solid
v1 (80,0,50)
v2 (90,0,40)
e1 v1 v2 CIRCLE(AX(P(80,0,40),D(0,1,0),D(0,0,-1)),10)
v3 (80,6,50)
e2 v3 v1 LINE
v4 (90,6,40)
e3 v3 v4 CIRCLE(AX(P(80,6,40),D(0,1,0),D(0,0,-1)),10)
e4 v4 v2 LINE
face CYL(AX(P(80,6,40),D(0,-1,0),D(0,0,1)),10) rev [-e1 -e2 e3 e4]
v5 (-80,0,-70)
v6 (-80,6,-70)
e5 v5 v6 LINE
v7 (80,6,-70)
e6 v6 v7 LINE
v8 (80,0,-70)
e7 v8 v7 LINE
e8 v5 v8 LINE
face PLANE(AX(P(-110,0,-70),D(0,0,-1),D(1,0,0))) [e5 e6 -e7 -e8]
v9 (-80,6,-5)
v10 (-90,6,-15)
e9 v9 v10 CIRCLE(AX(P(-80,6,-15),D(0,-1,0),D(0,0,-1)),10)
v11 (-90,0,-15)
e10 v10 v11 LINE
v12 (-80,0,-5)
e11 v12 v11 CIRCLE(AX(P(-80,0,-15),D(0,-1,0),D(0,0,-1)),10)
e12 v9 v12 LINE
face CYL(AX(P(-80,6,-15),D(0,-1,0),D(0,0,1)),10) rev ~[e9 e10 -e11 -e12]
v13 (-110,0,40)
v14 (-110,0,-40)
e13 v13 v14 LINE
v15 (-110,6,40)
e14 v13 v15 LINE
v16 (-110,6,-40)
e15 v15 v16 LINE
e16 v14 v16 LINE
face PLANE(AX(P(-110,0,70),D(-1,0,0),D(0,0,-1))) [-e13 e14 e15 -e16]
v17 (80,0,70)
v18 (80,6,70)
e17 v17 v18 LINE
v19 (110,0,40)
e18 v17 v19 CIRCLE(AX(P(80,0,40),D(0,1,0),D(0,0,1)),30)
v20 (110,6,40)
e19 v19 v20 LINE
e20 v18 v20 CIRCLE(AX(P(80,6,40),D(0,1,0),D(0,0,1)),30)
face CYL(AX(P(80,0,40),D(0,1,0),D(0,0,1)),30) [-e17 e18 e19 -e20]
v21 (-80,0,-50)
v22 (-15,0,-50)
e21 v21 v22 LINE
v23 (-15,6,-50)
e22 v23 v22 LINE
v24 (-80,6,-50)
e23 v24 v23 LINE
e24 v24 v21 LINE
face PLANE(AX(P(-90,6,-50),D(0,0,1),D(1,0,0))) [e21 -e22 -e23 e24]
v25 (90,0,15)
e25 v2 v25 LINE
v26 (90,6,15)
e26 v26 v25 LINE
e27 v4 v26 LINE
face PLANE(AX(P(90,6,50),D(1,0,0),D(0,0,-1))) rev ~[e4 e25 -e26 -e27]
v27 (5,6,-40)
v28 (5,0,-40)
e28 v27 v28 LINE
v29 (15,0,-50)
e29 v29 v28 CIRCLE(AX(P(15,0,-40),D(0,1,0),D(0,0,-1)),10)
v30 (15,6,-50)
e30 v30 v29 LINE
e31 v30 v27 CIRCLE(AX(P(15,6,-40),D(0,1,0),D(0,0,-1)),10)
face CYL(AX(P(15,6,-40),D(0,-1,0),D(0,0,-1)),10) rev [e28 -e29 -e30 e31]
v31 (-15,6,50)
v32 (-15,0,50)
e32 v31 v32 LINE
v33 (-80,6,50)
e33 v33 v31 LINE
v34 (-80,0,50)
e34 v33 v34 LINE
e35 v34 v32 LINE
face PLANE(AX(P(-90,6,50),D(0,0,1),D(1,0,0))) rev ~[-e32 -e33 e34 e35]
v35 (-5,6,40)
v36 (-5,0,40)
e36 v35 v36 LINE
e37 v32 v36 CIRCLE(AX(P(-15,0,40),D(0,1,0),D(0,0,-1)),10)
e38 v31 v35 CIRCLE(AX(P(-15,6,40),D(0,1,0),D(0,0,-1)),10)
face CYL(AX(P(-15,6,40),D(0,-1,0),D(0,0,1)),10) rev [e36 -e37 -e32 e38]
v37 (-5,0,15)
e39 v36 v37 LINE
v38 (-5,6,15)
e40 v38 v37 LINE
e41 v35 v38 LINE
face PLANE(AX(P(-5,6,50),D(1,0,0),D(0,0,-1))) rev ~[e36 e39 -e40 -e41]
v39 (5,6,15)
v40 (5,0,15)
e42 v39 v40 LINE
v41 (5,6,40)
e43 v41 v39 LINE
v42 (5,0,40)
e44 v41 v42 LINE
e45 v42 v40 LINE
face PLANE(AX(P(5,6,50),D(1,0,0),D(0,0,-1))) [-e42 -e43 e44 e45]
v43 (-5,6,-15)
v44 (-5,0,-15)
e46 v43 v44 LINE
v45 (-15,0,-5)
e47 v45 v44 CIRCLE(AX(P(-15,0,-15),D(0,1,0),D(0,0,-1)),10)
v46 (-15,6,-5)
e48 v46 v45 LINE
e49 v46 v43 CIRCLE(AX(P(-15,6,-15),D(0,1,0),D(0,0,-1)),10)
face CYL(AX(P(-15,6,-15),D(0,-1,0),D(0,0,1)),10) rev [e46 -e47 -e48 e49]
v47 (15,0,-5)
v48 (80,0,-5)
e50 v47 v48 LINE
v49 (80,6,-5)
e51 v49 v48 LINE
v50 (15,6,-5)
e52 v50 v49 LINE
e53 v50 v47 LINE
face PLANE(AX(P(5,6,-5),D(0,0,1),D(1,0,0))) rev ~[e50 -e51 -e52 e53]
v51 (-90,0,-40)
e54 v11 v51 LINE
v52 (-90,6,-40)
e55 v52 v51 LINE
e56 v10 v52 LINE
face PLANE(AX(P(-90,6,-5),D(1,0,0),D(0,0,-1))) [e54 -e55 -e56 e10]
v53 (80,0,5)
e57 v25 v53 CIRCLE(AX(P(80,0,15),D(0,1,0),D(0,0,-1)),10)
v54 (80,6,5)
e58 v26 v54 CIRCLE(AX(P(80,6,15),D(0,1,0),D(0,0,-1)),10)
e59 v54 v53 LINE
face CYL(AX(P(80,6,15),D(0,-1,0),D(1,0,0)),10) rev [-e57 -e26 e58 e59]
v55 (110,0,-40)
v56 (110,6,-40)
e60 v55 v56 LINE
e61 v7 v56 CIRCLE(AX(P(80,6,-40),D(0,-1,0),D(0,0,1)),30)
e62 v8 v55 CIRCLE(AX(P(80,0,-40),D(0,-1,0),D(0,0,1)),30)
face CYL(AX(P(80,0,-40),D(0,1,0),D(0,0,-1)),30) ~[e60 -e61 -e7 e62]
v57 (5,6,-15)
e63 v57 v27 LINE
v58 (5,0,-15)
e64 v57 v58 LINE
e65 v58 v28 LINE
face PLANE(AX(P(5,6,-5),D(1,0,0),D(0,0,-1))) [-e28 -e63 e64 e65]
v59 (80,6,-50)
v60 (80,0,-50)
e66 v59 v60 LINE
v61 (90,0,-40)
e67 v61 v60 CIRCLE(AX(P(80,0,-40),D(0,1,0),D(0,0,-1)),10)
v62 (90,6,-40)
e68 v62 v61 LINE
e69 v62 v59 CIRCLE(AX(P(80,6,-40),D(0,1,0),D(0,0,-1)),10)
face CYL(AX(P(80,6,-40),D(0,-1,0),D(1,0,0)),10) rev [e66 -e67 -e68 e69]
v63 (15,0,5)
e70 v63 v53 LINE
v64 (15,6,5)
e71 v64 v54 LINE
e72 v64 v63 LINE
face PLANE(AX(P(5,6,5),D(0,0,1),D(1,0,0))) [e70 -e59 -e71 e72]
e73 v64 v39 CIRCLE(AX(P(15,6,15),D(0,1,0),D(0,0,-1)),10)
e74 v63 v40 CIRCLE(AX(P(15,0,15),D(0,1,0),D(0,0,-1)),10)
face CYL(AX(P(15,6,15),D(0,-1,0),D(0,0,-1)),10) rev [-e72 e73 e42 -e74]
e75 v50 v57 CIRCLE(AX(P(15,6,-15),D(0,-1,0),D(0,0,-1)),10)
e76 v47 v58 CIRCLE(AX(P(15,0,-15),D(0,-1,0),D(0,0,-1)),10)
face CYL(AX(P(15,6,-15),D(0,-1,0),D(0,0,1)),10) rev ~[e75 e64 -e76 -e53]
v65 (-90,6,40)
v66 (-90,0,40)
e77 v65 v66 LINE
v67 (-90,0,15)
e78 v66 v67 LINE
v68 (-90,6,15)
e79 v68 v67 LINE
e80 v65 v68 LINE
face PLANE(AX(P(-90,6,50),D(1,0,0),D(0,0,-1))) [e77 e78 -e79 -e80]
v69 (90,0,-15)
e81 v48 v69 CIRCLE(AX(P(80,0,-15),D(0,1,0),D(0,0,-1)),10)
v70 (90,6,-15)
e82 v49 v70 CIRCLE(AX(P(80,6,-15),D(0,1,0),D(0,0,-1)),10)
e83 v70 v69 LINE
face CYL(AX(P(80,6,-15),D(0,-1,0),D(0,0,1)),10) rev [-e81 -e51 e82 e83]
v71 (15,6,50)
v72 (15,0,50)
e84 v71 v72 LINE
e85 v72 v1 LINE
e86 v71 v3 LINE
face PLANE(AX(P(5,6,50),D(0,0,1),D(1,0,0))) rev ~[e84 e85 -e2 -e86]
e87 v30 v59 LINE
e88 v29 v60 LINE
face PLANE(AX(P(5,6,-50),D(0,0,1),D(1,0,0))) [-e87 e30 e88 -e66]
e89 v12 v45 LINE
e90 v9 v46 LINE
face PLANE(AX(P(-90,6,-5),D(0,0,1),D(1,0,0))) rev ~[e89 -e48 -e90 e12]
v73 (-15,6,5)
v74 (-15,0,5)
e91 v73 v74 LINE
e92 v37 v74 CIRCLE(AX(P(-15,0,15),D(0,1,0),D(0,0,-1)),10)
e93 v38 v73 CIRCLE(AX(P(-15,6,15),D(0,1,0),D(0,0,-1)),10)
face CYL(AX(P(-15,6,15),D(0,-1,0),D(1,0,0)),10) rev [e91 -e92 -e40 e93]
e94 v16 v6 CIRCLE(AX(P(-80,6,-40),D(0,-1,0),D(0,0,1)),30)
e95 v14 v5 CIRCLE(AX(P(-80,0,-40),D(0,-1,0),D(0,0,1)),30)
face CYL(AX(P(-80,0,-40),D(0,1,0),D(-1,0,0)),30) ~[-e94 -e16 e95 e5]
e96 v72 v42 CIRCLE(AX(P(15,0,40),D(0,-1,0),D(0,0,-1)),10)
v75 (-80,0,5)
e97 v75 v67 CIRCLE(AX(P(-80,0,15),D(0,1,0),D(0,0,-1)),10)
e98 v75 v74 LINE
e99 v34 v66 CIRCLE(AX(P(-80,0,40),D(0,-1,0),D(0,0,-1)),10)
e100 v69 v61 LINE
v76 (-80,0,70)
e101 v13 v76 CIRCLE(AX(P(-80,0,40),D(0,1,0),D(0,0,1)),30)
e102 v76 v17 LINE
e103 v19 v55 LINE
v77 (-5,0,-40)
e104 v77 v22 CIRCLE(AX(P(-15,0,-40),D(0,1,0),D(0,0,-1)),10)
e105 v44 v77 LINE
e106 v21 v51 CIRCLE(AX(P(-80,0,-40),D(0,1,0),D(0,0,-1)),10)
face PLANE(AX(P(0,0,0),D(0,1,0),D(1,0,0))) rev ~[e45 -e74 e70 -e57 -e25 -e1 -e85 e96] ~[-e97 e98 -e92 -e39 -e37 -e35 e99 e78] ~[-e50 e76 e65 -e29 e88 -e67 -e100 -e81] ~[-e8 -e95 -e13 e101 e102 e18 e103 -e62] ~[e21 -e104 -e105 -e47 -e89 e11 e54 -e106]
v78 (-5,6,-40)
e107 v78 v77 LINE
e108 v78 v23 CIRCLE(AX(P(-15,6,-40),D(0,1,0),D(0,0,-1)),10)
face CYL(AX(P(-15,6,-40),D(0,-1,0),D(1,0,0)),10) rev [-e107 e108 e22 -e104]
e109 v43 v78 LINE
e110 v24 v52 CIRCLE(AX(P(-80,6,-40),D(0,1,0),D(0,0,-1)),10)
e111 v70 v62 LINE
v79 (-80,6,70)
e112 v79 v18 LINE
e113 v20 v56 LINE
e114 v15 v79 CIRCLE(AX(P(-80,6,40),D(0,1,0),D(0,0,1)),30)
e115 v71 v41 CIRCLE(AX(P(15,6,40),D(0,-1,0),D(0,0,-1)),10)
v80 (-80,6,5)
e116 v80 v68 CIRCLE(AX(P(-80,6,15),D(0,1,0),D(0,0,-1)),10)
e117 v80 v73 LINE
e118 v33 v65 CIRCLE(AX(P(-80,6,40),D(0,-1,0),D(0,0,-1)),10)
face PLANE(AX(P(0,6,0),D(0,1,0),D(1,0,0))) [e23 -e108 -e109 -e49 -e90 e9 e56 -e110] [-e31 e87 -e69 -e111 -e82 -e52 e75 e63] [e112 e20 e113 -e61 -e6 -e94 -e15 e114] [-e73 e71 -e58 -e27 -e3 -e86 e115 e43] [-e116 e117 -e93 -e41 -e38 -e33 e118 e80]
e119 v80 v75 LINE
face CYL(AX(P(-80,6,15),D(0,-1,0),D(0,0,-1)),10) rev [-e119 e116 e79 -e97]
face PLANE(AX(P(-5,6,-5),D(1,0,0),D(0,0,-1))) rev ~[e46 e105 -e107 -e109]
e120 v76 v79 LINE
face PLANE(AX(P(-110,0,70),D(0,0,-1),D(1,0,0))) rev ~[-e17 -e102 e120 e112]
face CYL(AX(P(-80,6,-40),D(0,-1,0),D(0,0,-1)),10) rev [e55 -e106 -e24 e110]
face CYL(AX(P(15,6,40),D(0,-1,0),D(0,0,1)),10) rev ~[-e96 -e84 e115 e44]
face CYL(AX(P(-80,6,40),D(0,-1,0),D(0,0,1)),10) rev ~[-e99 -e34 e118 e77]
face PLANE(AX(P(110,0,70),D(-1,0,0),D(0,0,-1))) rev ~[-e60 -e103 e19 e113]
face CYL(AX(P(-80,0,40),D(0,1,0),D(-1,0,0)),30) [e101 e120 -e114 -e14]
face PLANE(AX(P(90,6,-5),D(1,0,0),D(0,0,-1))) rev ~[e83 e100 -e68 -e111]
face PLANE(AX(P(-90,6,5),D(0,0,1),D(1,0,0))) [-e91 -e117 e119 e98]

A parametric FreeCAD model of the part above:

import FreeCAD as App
import Part
import Sketcher
from FreeCAD import Vector


def edges_at(feature, points):
    """Names of the edges that pass closest to the given points."""
    edges = feature.Shape.Edges
    near = lambda p: min(range(len(edges)), key=lambda i: edges[i].distToShape(Part.Vertex(*p))[0])
    return sorted({f"Edge{near(p) + 1}" for p in points})

doc = App.newDocument("Part")
body = doc.addObject("PartDesign::Body", "Body")

sketch1 = doc.addObject("Sketcher::SketchObject", "Sketch")
body.addObject(sketch1)
sketch1.AttachmentSupport = (doc.XZ_Plane, [""])
sketch1.MapMode = "FlatFace"
sketch1.addGeometry(Part.LineSegment(Vector(-110, -70, 0), Vector(-110, 70, 0)), False)
sketch1.addGeometry(Part.LineSegment(Vector(-110, 70, 0), Vector(110, 70, 0)), False)
sketch1.addGeometry(Part.LineSegment(Vector(110, 70, 0), Vector(110, -70, 0)), False)
sketch1.addGeometry(Part.LineSegment(Vector(110, -70, 0), Vector(-110, -70, 0)), False)
sketch1.addConstraint(Sketcher.Constraint("Coincident", 0, 2, 1, 1))
sketch1.addConstraint(Sketcher.Constraint("Coincident", 1, 2, 2, 1))
sketch1.addConstraint(Sketcher.Constraint("Coincident", 2, 2, 3, 1))
sketch1.addConstraint(Sketcher.Constraint("Coincident", 3, 2, 0, 1))
sketch1.addConstraint(Sketcher.Constraint("Vertical", 0))
sketch1.addConstraint(Sketcher.Constraint("Horizontal", 1))
sketch1.addConstraint(Sketcher.Constraint("Vertical", 2))
sketch1.addConstraint(Sketcher.Constraint("Horizontal", 3))
sketch1.addConstraint(Sketcher.Constraint("Symmetric", 0, 2, 2, 2, -1, 1))
sketch1.addConstraint(Sketcher.Constraint("DistanceX", 1, 1, 1, 2, 220.0))
sketch1.addConstraint(Sketcher.Constraint("DistanceY", 0, 1, 0, 2, 140.0))
pad1 = doc.addObject("PartDesign::Pad", "Pad")
body.addObject(pad1)
pad1.Profile = sketch1
pad1.Length = 6
pad1.Reversed = True

sketch2 = doc.addObject("Sketcher::SketchObject", "Sketch001")
body.addObject(sketch2)
sketch2.AttachmentSupport = (doc.XZ_Plane, [""])
sketch2.MapMode = "FlatFace"
sketch2.AttachmentOffset = App.Placement(Vector(0, 0, -6), App.Rotation())
sketch2.addGeometry(Part.LineSegment(Vector(5, -50, 0), Vector(5, -5, 0)), False)
sketch2.addGeometry(Part.LineSegment(Vector(5, -5, 0), Vector(90, -5, 0)), False)
sketch2.addGeometry(Part.LineSegment(Vector(90, -5, 0), Vector(90, -50, 0)), False)
sketch2.addGeometry(Part.LineSegment(Vector(90, -50, 0), Vector(5, -50, 0)), False)
sketch2.addGeometry(Part.LineSegment(Vector(-90, -50, 0), Vector(-90, -5, 0)), False)
sketch2.addGeometry(Part.LineSegment(Vector(-90, -5, 0), Vector(-5, -5, 0)), False)
sketch2.addGeometry(Part.LineSegment(Vector(-5, -5, 0), Vector(-5, -50, 0)), False)
sketch2.addGeometry(Part.LineSegment(Vector(-5, -50, 0), Vector(-90, -50, 0)), False)
sketch2.addGeometry(Part.LineSegment(Vector(-90, 5, 0), Vector(-90, 50, 0)), False)
sketch2.addGeometry(Part.LineSegment(Vector(-90, 50, 0), Vector(-5, 50, 0)), False)
sketch2.addGeometry(Part.LineSegment(Vector(-5, 50, 0), Vector(-5, 5, 0)), False)
sketch2.addGeometry(Part.LineSegment(Vector(-5, 5, 0), Vector(-90, 5, 0)), False)
sketch2.addGeometry(Part.LineSegment(Vector(5, 5, 0), Vector(5, 50, 0)), False)
sketch2.addGeometry(Part.LineSegment(Vector(5, 50, 0), Vector(90, 50, 0)), False)
sketch2.addGeometry(Part.LineSegment(Vector(90, 50, 0), Vector(90, 5, 0)), False)
sketch2.addGeometry(Part.LineSegment(Vector(90, 5, 0), Vector(5, 5, 0)), False)
sketch2.addConstraint(Sketcher.Constraint("Coincident", 0, 2, 1, 1))
sketch2.addConstraint(Sketcher.Constraint("Coincident", 1, 2, 2, 1))
sketch2.addConstraint(Sketcher.Constraint("Coincident", 2, 2, 3, 1))
sketch2.addConstraint(Sketcher.Constraint("Coincident", 3, 2, 0, 1))
sketch2.addConstraint(Sketcher.Constraint("Coincident", 4, 2, 5, 1))
sketch2.addConstraint(Sketcher.Constraint("Coincident", 5, 2, 6, 1))
sketch2.addConstraint(Sketcher.Constraint("Coincident", 6, 2, 7, 1))
sketch2.addConstraint(Sketcher.Constraint("Coincident", 7, 2, 4, 1))
sketch2.addConstraint(Sketcher.Constraint("Coincident", 8, 2, 9, 1))
sketch2.addConstraint(Sketcher.Constraint("Coincident", 9, 2, 10, 1))
sketch2.addConstraint(Sketcher.Constraint("Coincident", 10, 2, 11, 1))
sketch2.addConstraint(Sketcher.Constraint("Coincident", 11, 2, 8, 1))
sketch2.addConstraint(Sketcher.Constraint("Coincident", 12, 2, 13, 1))
sketch2.addConstraint(Sketcher.Constraint("Coincident", 13, 2, 14, 1))
sketch2.addConstraint(Sketcher.Constraint("Coincident", 14, 2, 15, 1))
sketch2.addConstraint(Sketcher.Constraint("Coincident", 15, 2, 12, 1))
sketch2.addConstraint(Sketcher.Constraint("Vertical", 0))
sketch2.addConstraint(Sketcher.Constraint("Horizontal", 1))
sketch2.addConstraint(Sketcher.Constraint("Vertical", 2))
sketch2.addConstraint(Sketcher.Constraint("Horizontal", 3))
sketch2.addConstraint(Sketcher.Constraint("Vertical", 4))
sketch2.addConstraint(Sketcher.Constraint("Horizontal", 5))
sketch2.addConstraint(Sketcher.Constraint("Vertical", 6))
sketch2.addConstraint(Sketcher.Constraint("Horizontal", 7))
sketch2.addConstraint(Sketcher.Constraint("Vertical", 8))
sketch2.addConstraint(Sketcher.Constraint("Horizontal", 9))
sketch2.addConstraint(Sketcher.Constraint("Vertical", 10))
sketch2.addConstraint(Sketcher.Constraint("Horizontal", 11))
sketch2.addConstraint(Sketcher.Constraint("Vertical", 12))
sketch2.addConstraint(Sketcher.Constraint("Horizontal", 13))
sketch2.addConstraint(Sketcher.Constraint("Vertical", 14))
sketch2.addConstraint(Sketcher.Constraint("Horizontal", 15))
sketch2.addConstraint(Sketcher.Constraint("Symmetric", 2, 2, 8, 2, -1, 1))
sketch2.addConstraint(Sketcher.Constraint("Symmetric", 0, 2, 10, 2, -1, 1))
sketch2.addConstraint(Sketcher.Constraint("Symmetric", 6, 2, 12, 2, -1, 1))
sketch2.addConstraint(Sketcher.Constraint("Symmetric", 4, 2, 14, 2, -1, 1))
sketch2.addConstraint(Sketcher.Constraint("Symmetric", 1, 2, 4, 2, -2))
sketch2.addConstraint(Sketcher.Constraint("Symmetric", 3, 2, 6, 2, -2))
sketch2.addConstraint(Sketcher.Constraint("DistanceX", 1, 1, 1, 2, 85.0))
sketch2.addConstraint(Sketcher.Constraint("DistanceY", 0, 1, 0, 2, 45.0))
sketch2.addConstraint(Sketcher.Constraint("DistanceX", -1, 1, 0, 2, 5.0))
sketch2.addConstraint(Sketcher.Constraint("DistanceY", 0, 2, -1, 1, 5.0))
pocket1 = doc.addObject("PartDesign::Pocket", "Pocket")
body.addObject(pocket1)
pocket1.Profile = sketch2
pocket1.Length = 6
pocket1.Reversed = True
doc.recompute()

fillet = doc.addObject("PartDesign::Fillet", "Fillet")
body.addObject(fillet)
fillet.Base = (pocket1, edges_at(pocket1, [
    (-110, 3, -70),
    (110, 3, -70),
    (110, 3, 70),
    (-110, 3, 70),
]))
fillet.Radius = 30
doc.recompute()

fillet2 = doc.addObject("PartDesign::Fillet", "Fillet001")
body.addObject(fillet2)
fillet2.Base = (fillet, edges_at(fillet, [
    (-90, 3, -50),
    (-5, 3, -50),
    (-5, 3, -5),
    (-90, 3, -5),
    (-90, 3, 50),
    (-90, 3, 5),
    (-5, 3, 5),
    (-5, 3, 50),
    (90, 3, 50),
    (5, 3, 50),
    (5, 3, 5),
    (90, 3, 5),
    (5, 3, -50),
    (90, 3, -50),
    (90, 3, -5),
    (5, 3, -5),
]))
fillet2.Radius = 10

doc.recompute()
